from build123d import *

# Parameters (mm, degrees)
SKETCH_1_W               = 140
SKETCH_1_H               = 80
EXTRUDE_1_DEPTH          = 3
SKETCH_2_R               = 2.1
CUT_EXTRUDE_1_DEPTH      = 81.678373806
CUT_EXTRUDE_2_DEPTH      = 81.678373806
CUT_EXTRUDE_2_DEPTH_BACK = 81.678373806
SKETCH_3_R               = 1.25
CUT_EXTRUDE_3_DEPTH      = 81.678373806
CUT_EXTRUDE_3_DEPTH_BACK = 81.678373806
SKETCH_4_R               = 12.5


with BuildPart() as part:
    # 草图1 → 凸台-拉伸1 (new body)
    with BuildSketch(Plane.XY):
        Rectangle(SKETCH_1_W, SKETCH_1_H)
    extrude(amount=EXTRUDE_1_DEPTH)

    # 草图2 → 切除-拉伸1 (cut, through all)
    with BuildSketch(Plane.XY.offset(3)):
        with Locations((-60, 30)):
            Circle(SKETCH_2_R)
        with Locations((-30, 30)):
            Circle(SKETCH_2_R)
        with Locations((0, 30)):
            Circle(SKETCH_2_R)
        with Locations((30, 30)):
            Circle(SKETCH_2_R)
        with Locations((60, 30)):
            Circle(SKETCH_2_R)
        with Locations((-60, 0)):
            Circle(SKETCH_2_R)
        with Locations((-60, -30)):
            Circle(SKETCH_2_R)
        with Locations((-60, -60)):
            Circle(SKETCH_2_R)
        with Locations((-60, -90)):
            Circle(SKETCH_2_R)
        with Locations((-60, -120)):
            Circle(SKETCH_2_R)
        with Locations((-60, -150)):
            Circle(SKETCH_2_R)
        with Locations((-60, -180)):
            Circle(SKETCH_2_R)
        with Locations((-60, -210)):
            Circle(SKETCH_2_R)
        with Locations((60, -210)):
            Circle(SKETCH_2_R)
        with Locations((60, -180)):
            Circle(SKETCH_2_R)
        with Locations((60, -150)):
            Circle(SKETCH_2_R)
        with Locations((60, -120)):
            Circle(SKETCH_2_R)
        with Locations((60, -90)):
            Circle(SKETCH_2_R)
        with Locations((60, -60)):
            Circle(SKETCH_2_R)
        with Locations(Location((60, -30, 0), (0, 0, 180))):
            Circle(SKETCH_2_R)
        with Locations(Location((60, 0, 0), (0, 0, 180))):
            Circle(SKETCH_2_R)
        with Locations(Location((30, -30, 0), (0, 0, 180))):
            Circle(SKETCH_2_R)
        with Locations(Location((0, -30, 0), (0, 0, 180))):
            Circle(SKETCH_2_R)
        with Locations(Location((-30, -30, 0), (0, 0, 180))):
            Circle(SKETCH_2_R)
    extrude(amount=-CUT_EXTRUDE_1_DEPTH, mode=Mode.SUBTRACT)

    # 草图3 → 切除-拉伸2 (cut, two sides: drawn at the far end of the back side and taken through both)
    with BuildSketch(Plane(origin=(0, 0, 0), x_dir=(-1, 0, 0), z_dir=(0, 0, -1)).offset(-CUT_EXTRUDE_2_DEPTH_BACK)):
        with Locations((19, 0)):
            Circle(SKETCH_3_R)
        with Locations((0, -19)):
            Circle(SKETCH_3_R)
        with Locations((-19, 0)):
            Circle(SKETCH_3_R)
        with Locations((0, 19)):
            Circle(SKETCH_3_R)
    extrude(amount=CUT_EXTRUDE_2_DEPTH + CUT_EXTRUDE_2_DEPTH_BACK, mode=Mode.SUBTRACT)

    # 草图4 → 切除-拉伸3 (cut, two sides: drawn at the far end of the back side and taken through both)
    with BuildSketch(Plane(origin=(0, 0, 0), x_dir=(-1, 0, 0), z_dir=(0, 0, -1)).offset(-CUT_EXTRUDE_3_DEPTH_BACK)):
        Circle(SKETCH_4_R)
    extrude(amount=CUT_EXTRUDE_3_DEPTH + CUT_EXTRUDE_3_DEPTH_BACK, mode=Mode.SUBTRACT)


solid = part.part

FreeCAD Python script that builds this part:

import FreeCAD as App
import Part
import Sketcher

V = App.Vector
Q = App.Units.Quantity


def add_polygon(sketch, points):
    """Adds a closed chain of lines whose ends are joined by coincident constraints."""
    first, n = sketch.GeometryCount, len(points)
    for a, b in zip(points, points[1:] + points[:1]):
        sketch.addGeometry(Part.LineSegment(App.Vector(*a, 0), App.Vector(*b, 0)), False)
    for i in range(n):
        sketch.addConstraint(Sketcher.Constraint("Coincident", first + i, 2, first + (i + 1) % n, 1))

doc = App.newDocument("Part")
body = doc.addObject("PartDesign::Body", "Body")

# Sketch on XY plane
sketch1 = body.newObject("Sketcher::SketchObject", "Sketch")
sketch1.AttachmentSupport = (doc.getObject("XY_Plane"), [""])
sketch1.MapMode = "FlatFace"
add_polygon(sketch1, [(-70, 40), (-70, -40), (70, -40), (70, 40)])  # lines 0-3
sketch1.addConstraint(Sketcher.Constraint("Vertical", 0))
sketch1.addConstraint(Sketcher.Constraint("Horizontal", 1))
sketch1.addConstraint(Sketcher.Constraint("Vertical", 2))
sketch1.addConstraint(Sketcher.Constraint("Horizontal", 3))
sketch1.addConstraint(Sketcher.Constraint("Symmetric", 0, 2, 2, 2, -1, 1))
sketch1.addConstraint(Sketcher.Constraint("DistanceX", 1, 1, 1, 2, Q("140 mm")))
sketch1.addConstraint(Sketcher.Constraint("DistanceY", 0, 2, 0, 1, Q("80 mm")))
pad1 = body.newObject("PartDesign::Pad", "Pad")
pad1.Profile = sketch1
pad1.Length = 3

# Sketch on XY plane
sketch2 = body.newObject("Sketcher::SketchObject", "Sketch001")
sketch2.AttachmentSupport = (doc.getObject("XY_Plane"), [""])
sketch2.MapMode = "FlatFace"
sketch2.AttachmentOffset = App.Placement(V(0, 0, 3), App.Rotation())
sketch2.addGeometry(Part.Circle(V(-60, 30, 0), V(0, 0, 1), 2.1), False)
sketch2.addGeometry(Part.Circle(V(-30, 30, 0), V(0, 0, 1), 2.1), False)
sketch2.addGeometry(Part.Circle(V(0, 30, 0), V(0, 0, 1), 2.1), False)
sketch2.addGeometry(Part.Circle(V(30, 30, 0), V(0, 0, 1), 2.1), False)
sketch2.addGeometry(Part.Circle(V(60, 30, 0), V(0, 0, 1), 2.1), False)
sketch2.addGeometry(Part.Circle(V(-60, 0, 0), V(0, 0, 1), 2.1), False)
sketch2.addGeometry(Part.Circle(V(-60, -30, 0), V(0, 0, 1), 2.1), False)
sketch2.addGeometry(Part.Circle(V(-60, -60, 0), V(0, 0, 1), 2.1), False)
sketch2.addGeometry(Part.Circle(V(-60, -90, 0), V(0, 0, 1), 2.1), False)
sketch2.addGeometry(Part.Circle(V(-60, -120, 0), V(0, 0, 1), 2.1), False)
sketch2.addGeometry(Part.Circle(V(-60, -150, 0), V(0, 0, 1), 2.1), False)
sketch2.addGeometry(Part.Circle(V(-60, -180, 0), V(0, 0, 1), 2.1), False)
sketch2.addGeometry(Part.Circle(V(-60, -210, 0), V(0, 0, 1), 2.1), False)
sketch2.addGeometry(Part.Circle(V(60, -210, 0), V(0, 0, 1), 2.1), False)
sketch2.addGeometry(Part.Circle(V(60, -180, 0), V(0, 0, 1), 2.1), False)
sketch2.addGeometry(Part.Circle(V(60, -150, 0), V(0, 0, 1), 2.1), False)
sketch2.addGeometry(Part.Circle(V(60, -120, 0), V(0, 0, 1), 2.1), False)
sketch2.addGeometry(Part.Circle(V(60, -90, 0), V(0, 0, 1), 2.1), False)
sketch2.addGeometry(Part.Circle(V(60, -60, 0), V(0, 0, 1), 2.1), False)
sketch2.addGeometry(Part.Circle(V(60, -30, 0), V(0, 0, 1), 2.1), False)
sketch2.addGeometry(Part.Circle(V(60, 0, 0), V(0, 0, 1), 2.1), False)
sketch2.addGeometry(Part.Circle(V(30, -30, 0), V(0, 0, 1), 2.1), False)
sketch2.addGeometry(Part.Circle(V(0, -30, 0), V(0, 0, 1), 2.1), False)
sketch2.addGeometry(Part.Circle(V(-30, -30, 0), V(0, 0, 1), 2.1), False)
sketch2.addConstraint(Sketcher.Constraint("Equal", 0, 1))
sketch2.addConstraint(Sketcher.Constraint("Equal", 1, 2))
sketch2.addConstraint(Sketcher.Constraint("Equal", 2, 3))
sketch2.addConstraint(Sketcher.Constraint("Equal", 3, 4))
sketch2.addConstraint(Sketcher.Constraint("Equal", 4, 5))
sketch2.addConstraint(Sketcher.Constraint("Equal", 5, 6))
sketch2.addConstraint(Sketcher.Constraint("Equal", 6, 7))
sketch2.addConstraint(Sketcher.Constraint("Equal", 7, 8))
sketch2.addConstraint(Sketcher.Constraint("Equal", 8, 9))
sketch2.addConstraint(Sketcher.Constraint("Equal", 9, 10))
sketch2.addConstraint(Sketcher.Constraint("Equal", 10, 11))
sketch2.addConstraint(Sketcher.Constraint("Equal", 11, 12))
sketch2.addConstraint(Sketcher.Constraint("Equal", 12, 13))
sketch2.addConstraint(Sketcher.Constraint("Equal", 13, 14))
sketch2.addConstraint(Sketcher.Constraint("Equal", 14, 15))
sketch2.addConstraint(Sketcher.Constraint("Equal", 15, 16))
sketch2.addConstraint(Sketcher.Constraint("Equal", 16, 17))
sketch2.addConstraint(Sketcher.Constraint("Equal", 17, 18))
sketch2.addConstraint(Sketcher.Constraint("Equal", 18, 19))
sketch2.addConstraint(Sketcher.Constraint("Equal", 19, 20))
sketch2.addConstraint(Sketcher.Constraint("Equal", 20, 21))
sketch2.addConstraint(Sketcher.Constraint("Equal", 21, 22))
sketch2.addConstraint(Sketcher.Constraint("Equal", 22, 23))
sketch2.addConstraint(Sketcher.Constraint("Symmetric", 4, 3, 6, 3, -1, 1))
sketch2.addConstraint(Sketcher.Constraint("Symmetric", 0, 3, 19, 3, -1, 1))
sketch2.addConstraint(Sketcher.Constraint("Symmetric", 5, 3, 20, 3, -1, 1))
sketch2.addConstraint(Sketcher.Constraint("Symmetric", 1, 3, 21, 3, -1, 1))
sketch2.addConstraint(Sketcher.Constraint("Symmetric", 2, 3, 22, 3, -1, 1))
sketch2.addConstraint(Sketcher.Constraint("Symmetric", 3, 3, 23, 3, -1, 1))
sketch2.addConstraint(Sketcher.Constraint("Symmetric", 1, 3, 3, 3, -2))
sketch2.addConstraint(Sketcher.Constraint("Symmetric", 0, 3, 4, 3, -2))
sketch2.addConstraint(Sketcher.Constraint("Symmetric", 12, 3, 13, 3, -2))
sketch2.addConstraint(Sketcher.Constraint("Symmetric", 11, 3, 14, 3, -2))
sketch2.addConstraint(Sketcher.Constraint("Symmetric", 10, 3, 15, 3, -2))
sketch2.addConstraint(Sketcher.Constraint("Symmetric", 9, 3, 16, 3, -2))
sketch2.addConstraint(Sketcher.Constraint("Symmetric", 8, 3, 17, 3, -2))
sketch2.addConstraint(Sketcher.Constraint("Symmetric", 7, 3, 18, 3, -2))
sketch2.addConstraint(Sketcher.Constraint("PointOnObject", 2, 3, -2))
sketch2.addConstraint(Sketcher.Constraint("PointOnObject", 5, 3, -1))
sketch2.addConstraint(Sketcher.Constraint("Horizontal", 0, 3, 1, 3))
sketch2.addConstraint(Sketcher.Constraint("Horizontal", 1, 3, 2, 3))
sketch2.addConstraint(Sketcher.Constraint("Vertical", 0, 3, 5, 3))
sketch2.addConstraint(Sketcher.Constraint("Vertical", 6, 3, 7, 3))
sketch2.addConstraint(Sketcher.Constraint("Vertical", 7, 3, 8, 3))
sketch2.addConstraint(Sketcher.Constraint("Vertical", 8, 3, 9, 3))
sketch2.addConstraint(Sketcher.Constraint("Vertical", 9, 3, 10, 3))
sketch2.addConstraint(Sketcher.Constraint("Vertical", 10, 3, 11, 3))
sketch2.addConstraint(Sketcher.Constraint("Vertical", 11, 3, 12, 3))
sketch2.addConstraint(Sketcher.Constraint("Diameter", 0, Q("4.2 mm")))
sketch2.addConstraint(Sketcher.Constraint("DistanceX", 0, 3, -1, 1, Q("60 mm")))
sketch2.addConstraint(Sketcher.Constraint("DistanceY", -1, 1, 0, 3, Q("30 mm")))
sketch2.addConstraint(Sketcher.Constraint("DistanceX", 1, 3, -1, 1, Q("30 mm")))
sketch2.addConstraint(Sketcher.Constraint("DistanceY", 7, 3, -1, 1, Q("60 mm")))
sketch2.addConstraint(Sketcher.Constraint("DistanceY", 8, 3, -1, 1, Q("90 mm")))
sketch2.addConstraint(Sketcher.Constraint("DistanceY", 9, 3, -1, 1, Q("120 mm")))
sketch2.addConstraint(Sketcher.Constraint("DistanceY", 10, 3, -1, 1, Q("150 mm")))
sketch2.addConstraint(Sketcher.Constraint("DistanceY", 11, 3, -1, 1, Q("180 mm")))
sketch2.addConstraint(Sketcher.Constraint("DistanceY", 12, 3, -1, 1, Q("210 mm")))
pocket1 = body.newObject("PartDesign::Pocket", "Pocket")
pocket1.Profile = sketch2
pocket1.Type = "ThroughAll"

# Sketch on XY plane
sketch3 = body.newObject("Sketcher::SketchObject", "Sketch002")
sketch3.AttachmentSupport = (doc.getObject("XY_Plane"), [""])
sketch3.MapMode = "FlatFace"
sketch3.addGeometry(Part.Circle(V(-19, 0, 0), V(0, 0, 1), 1.2), False)
sketch3.addGeometry(Part.Circle(V(0, -19, 0), V(0, 0, 1), 1.2), False)
sketch3.addGeometry(Part.Circle(V(19, 0, 0), V(0, 0, 1), 1.2), False)
sketch3.addGeometry(Part.Circle(V(0, 19, 0), V(0, 0, 1), 1.2), False)
sketch3.addConstraint(Sketcher.Constraint("Equal", 0, 1))
sketch3.addConstraint(Sketcher.Constraint("Equal", 1, 2))
sketch3.addConstraint(Sketcher.Constraint("Equal", 2, 3))
sketch3.addConstraint(Sketcher.Constraint("Symmetric", 0, 3, 2, 3, -1, 1))
sketch3.addConstraint(Sketcher.Constraint("Symmetric", 1, 3, 3, 3, -1, 1))
sketch3.addConstraint(Sketcher.Constraint("PointOnObject", 0, 3, -1))
sketch3.addConstraint(Sketcher.Constraint("PointOnObject", 1, 3, -2))
sketch3.addConstraint(Sketcher.Constraint("Diameter", 0, Q("2.5 mm")))
sketch3.addConstraint(Sketcher.Constraint("DistanceX", 0, 3, -1, 1, Q("19 mm")))
sketch3.addConstraint(Sketcher.Constraint("DistanceY", 1, 3, -1, 1, Q("19 mm")))
pocket2 = body.newObject("PartDesign::Pocket", "Pocket001")
pocket2.Profile = sketch3
pocket2.Type = "ThroughAll"
pocket2.Midplane = True

# Sketch on XY plane
sketch4 = body.newObject("Sketcher::SketchObject", "Sketch003")
sketch4.AttachmentSupport = (doc.getObject("XY_Plane"), [""])
sketch4.MapMode = "FlatFace"
sketch4.addGeometry(Part.Circle(V(0, 0, 0), V(0, 0, 1), 12), False)
sketch4.addConstraint(Sketcher.Constraint("Coincident", 0, 3, -1, 1))
sketch4.addConstraint(Sketcher.Constraint("Diameter", 0, Q("25 mm")))
pocket3 = body.newObject("PartDesign::Pocket", "Pocket002")
pocket3.Profile = sketch4
pocket3.Type = "ThroughAll"
pocket3.Midplane = True

doc.recompute()
